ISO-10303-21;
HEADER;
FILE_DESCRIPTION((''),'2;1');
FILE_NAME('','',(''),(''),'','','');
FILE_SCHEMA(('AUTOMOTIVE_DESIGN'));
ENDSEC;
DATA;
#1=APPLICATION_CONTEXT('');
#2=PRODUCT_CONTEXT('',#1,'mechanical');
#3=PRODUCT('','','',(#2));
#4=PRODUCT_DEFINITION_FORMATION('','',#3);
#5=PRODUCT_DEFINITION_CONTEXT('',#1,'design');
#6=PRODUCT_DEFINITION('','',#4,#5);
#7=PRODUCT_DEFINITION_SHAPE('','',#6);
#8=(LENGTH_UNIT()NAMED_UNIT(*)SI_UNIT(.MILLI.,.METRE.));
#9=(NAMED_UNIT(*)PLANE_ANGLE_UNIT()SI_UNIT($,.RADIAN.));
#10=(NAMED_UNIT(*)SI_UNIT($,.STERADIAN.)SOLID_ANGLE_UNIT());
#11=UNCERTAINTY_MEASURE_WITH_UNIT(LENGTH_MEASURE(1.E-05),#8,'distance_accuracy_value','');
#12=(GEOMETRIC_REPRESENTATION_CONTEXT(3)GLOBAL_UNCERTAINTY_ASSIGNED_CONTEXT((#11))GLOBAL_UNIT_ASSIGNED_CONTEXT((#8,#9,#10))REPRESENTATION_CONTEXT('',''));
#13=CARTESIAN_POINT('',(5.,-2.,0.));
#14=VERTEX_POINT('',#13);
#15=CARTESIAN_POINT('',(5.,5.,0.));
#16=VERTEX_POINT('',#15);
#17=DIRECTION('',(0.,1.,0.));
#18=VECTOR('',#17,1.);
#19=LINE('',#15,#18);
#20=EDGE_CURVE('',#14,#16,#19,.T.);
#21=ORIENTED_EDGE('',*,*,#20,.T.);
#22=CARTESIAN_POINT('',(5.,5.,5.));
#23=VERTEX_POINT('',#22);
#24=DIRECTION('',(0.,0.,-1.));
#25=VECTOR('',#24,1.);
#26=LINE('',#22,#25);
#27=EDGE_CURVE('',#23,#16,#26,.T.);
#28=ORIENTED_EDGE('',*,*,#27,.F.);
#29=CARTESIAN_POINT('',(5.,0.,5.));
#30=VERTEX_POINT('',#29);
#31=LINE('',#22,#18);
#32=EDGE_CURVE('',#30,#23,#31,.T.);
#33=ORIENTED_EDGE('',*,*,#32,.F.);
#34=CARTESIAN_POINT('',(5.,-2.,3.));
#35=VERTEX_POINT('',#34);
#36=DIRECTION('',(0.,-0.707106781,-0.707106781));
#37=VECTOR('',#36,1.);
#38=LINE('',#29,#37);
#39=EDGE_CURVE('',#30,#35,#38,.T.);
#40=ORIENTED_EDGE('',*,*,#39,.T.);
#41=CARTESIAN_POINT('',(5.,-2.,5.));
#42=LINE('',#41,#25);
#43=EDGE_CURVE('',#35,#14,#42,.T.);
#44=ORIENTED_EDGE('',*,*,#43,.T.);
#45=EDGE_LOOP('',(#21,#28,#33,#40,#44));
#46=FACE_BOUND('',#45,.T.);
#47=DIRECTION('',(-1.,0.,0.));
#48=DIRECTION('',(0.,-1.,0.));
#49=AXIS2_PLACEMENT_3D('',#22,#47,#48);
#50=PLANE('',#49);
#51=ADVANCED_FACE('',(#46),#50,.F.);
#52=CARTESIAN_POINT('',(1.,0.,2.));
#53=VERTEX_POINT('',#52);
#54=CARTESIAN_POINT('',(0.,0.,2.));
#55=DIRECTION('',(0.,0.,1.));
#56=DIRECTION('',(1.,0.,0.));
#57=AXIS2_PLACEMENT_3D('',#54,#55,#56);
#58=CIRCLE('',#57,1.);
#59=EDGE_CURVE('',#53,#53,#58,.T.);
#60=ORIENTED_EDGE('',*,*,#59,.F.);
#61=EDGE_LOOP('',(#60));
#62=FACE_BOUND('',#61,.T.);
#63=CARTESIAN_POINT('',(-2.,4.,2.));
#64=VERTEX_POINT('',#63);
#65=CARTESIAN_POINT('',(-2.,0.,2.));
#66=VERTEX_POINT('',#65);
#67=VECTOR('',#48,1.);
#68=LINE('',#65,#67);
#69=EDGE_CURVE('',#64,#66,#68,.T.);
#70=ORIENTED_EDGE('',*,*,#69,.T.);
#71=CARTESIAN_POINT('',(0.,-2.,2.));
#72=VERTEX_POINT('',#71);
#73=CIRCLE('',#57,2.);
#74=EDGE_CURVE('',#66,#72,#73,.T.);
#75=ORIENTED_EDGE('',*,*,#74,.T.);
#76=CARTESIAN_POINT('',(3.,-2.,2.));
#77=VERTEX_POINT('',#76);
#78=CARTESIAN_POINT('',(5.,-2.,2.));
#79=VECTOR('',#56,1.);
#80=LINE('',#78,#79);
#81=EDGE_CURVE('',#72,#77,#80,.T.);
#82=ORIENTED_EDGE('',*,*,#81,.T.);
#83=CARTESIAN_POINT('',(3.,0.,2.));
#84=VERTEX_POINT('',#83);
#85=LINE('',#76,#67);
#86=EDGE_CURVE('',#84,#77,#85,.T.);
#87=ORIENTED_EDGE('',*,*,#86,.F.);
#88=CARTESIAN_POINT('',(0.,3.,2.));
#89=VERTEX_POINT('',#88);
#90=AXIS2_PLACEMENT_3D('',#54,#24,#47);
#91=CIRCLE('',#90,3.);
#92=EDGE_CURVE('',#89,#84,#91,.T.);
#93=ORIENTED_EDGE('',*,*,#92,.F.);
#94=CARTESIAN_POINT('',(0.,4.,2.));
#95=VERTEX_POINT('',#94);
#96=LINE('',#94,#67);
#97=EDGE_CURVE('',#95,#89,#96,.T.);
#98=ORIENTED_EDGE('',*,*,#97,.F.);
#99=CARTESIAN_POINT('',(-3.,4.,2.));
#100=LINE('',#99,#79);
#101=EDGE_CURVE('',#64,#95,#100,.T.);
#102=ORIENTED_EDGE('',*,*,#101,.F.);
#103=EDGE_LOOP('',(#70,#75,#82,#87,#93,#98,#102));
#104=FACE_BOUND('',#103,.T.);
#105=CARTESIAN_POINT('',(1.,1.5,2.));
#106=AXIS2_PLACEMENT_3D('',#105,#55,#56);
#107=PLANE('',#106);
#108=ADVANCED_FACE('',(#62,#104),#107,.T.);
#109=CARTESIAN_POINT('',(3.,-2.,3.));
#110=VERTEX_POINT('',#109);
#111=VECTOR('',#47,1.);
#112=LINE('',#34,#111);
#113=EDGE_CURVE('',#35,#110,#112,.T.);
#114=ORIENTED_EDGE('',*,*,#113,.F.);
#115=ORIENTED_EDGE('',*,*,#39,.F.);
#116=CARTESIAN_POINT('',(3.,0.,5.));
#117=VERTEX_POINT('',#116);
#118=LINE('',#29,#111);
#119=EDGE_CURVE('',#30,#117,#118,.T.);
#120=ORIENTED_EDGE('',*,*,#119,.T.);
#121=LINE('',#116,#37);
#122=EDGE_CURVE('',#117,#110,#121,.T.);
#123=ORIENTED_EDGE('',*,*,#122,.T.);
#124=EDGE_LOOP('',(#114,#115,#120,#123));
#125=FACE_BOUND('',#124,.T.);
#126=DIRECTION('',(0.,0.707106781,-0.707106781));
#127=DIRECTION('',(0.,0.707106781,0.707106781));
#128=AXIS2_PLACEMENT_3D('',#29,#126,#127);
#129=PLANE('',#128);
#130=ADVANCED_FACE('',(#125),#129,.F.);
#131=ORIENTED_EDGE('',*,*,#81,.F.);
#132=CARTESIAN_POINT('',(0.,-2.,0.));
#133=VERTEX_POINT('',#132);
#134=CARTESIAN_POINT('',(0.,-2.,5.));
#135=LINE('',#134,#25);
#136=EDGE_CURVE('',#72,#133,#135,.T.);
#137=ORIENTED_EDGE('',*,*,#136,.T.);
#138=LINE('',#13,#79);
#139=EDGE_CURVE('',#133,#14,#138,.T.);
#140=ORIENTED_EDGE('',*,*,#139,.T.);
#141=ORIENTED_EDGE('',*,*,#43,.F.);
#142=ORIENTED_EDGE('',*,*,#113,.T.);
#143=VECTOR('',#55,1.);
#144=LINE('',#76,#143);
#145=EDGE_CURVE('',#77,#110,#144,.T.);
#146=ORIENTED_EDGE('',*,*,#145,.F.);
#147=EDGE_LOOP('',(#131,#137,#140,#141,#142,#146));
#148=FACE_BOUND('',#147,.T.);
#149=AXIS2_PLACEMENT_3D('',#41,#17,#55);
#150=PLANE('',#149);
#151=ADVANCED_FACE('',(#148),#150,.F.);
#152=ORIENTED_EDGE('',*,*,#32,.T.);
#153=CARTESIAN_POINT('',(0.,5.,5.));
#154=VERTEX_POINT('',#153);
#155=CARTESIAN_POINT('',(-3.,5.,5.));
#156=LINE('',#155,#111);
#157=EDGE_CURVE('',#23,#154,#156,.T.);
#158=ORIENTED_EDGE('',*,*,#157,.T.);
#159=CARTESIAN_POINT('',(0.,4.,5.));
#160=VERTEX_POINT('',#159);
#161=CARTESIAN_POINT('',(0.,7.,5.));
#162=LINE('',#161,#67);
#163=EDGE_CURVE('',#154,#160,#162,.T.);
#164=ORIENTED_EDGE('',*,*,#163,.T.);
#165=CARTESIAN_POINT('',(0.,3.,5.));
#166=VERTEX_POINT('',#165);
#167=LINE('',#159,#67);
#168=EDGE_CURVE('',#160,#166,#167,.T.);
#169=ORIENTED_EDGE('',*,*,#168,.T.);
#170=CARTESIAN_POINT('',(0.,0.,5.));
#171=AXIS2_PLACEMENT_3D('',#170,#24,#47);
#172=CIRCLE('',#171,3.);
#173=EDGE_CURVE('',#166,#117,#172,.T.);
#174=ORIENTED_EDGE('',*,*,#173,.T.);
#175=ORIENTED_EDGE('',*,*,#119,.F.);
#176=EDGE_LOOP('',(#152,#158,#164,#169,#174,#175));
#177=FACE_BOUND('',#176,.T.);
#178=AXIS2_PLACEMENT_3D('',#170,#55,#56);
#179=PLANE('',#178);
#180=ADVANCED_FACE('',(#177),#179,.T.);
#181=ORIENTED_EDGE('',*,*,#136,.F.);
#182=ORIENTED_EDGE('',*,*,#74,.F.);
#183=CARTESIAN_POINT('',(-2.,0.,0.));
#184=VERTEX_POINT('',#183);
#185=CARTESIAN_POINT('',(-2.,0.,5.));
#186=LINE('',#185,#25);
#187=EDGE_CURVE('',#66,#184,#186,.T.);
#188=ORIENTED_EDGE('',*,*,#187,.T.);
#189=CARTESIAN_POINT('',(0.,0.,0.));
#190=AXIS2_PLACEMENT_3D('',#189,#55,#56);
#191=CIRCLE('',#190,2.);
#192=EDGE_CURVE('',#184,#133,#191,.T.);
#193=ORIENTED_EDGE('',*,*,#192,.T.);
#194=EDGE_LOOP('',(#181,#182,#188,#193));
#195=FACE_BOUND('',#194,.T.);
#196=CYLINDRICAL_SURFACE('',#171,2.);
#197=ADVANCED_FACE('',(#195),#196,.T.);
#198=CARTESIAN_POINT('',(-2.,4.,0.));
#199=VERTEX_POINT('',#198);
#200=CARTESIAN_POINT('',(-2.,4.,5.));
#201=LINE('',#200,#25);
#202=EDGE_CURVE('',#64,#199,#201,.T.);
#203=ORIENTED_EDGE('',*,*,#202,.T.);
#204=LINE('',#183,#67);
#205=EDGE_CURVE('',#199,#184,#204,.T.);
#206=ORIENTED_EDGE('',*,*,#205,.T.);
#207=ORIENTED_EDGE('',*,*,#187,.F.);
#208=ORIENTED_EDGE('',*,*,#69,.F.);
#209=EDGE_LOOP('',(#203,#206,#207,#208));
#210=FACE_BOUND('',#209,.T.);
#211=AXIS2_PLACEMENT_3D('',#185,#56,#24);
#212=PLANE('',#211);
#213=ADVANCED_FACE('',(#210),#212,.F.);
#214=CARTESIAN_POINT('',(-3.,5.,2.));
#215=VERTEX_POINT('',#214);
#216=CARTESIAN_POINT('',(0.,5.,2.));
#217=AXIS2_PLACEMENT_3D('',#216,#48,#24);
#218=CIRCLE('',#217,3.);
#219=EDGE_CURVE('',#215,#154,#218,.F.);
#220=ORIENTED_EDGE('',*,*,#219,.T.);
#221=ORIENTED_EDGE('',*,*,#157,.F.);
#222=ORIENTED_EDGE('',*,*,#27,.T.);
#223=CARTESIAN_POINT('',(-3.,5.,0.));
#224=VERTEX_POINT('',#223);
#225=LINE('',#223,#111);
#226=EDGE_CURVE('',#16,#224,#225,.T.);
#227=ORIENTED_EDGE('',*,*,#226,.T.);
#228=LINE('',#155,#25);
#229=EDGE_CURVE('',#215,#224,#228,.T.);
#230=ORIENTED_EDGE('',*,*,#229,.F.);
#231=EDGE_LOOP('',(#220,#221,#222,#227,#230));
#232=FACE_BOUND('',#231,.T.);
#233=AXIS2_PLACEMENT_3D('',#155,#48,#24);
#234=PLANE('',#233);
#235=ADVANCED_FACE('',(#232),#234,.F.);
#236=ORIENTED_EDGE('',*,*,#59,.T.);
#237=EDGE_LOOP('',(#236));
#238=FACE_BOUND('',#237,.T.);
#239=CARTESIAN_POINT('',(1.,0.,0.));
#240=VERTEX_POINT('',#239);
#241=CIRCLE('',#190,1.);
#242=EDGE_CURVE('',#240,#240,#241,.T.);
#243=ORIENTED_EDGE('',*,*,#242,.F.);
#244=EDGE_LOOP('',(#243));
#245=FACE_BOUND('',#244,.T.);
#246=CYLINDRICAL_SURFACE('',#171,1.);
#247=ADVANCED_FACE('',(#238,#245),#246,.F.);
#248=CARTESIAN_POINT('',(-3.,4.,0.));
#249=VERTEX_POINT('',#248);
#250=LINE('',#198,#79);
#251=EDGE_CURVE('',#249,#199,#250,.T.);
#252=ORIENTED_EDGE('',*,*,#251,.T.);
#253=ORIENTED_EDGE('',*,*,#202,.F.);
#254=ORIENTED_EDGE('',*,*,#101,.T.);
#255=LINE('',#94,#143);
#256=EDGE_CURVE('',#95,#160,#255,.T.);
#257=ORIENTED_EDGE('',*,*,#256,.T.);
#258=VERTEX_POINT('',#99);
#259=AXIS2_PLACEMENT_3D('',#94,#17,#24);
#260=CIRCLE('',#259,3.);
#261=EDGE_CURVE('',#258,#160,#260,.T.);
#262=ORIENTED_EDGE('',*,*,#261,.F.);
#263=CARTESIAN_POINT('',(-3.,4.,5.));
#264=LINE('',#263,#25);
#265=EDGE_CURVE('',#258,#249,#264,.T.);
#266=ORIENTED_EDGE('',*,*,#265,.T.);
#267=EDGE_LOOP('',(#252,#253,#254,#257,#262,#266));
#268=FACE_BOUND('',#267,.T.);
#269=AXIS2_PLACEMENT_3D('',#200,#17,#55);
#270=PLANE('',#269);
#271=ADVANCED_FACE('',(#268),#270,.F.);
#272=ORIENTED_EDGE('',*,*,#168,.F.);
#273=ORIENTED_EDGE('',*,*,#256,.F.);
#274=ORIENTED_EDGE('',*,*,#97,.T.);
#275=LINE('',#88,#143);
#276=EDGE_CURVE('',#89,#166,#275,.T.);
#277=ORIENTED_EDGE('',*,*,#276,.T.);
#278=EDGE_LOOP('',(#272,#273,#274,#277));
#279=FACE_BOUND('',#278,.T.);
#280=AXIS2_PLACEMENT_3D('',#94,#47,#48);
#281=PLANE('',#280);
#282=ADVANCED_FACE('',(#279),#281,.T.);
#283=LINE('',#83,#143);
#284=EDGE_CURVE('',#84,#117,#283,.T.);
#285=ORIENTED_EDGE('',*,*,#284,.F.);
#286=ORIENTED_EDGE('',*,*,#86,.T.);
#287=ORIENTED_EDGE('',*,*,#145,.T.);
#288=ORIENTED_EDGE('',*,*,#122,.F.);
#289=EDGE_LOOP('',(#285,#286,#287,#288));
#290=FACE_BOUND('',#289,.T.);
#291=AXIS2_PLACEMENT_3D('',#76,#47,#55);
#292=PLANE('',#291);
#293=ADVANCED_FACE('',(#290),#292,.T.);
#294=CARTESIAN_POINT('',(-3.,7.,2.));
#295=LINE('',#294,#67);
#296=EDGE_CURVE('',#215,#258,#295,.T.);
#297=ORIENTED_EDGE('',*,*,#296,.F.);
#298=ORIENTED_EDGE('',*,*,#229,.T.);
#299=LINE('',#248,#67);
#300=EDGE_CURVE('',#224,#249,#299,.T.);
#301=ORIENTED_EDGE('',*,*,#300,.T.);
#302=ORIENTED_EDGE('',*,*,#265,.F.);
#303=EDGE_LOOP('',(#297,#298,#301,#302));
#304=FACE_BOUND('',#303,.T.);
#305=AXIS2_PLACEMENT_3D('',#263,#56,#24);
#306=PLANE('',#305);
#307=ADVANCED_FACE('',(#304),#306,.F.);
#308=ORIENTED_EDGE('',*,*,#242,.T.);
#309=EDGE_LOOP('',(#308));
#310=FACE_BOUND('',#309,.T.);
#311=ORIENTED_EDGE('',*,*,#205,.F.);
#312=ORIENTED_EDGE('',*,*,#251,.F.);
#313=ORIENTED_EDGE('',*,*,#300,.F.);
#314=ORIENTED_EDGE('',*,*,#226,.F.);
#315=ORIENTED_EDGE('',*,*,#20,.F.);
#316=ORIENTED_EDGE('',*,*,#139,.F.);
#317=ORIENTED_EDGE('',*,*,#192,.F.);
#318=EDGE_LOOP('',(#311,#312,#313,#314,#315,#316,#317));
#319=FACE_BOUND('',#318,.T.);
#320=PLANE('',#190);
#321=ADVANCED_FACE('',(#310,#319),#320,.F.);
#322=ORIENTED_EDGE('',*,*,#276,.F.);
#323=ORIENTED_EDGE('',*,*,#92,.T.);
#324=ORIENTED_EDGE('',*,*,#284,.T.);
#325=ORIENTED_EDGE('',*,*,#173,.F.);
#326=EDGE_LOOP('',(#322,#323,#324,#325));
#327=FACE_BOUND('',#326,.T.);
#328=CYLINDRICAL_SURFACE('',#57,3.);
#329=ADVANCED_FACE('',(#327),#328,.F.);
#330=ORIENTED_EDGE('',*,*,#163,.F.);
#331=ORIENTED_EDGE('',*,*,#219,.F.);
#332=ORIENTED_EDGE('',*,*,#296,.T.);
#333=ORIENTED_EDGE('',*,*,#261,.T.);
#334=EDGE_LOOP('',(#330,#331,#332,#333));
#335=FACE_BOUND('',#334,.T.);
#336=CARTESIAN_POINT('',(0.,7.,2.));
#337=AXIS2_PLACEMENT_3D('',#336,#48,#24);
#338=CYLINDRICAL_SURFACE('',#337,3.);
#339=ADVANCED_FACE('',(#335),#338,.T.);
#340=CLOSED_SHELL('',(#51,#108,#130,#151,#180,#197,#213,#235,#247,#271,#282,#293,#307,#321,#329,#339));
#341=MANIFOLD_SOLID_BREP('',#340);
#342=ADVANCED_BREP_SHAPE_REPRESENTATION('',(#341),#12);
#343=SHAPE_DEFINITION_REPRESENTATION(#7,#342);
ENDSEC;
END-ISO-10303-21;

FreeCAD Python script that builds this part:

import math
import FreeCAD as App
import Part
import Sketcher
from FreeCAD import Vector
Q = App.Units.Quantity


def add_polygon(sketch, points):
    """Adds a closed chain of lines whose ends are joined by coincident constraints."""
    first, n = sketch.GeometryCount, len(points)
    for a, b in zip(points, points[1:] + points[:1]):
        sketch.addGeometry(Part.LineSegment(App.Vector(*a, 0), App.Vector(*b, 0)), False)
    for i in range(n):
        sketch.addConstraint(Sketcher.Constraint("Coincident", first + i, 2, first + (i + 1) % n, 1))

doc = App.newDocument("Part")
params = doc.addObject("Spreadsheet::Sheet", "Params")
for row, (alias, value) in enumerate([
    ("sketch1_diameter", "2 mm"),
    ("sketch1_radius", "2 mm"),
    ("sketch1_width", "5 mm"),
    ("sketch1_width2", "8 mm"),
    ("sketch1_height", "4 mm"),
    ("pad1_length", "5 mm"),
    ("sketch2_radius", "3 mm"),
    ("sketch2_width", "2 mm"),
    ("sketch2_width2", "3 mm"),
    ("sketch2_height", "7 mm"),
    ("sketch2_width3", "12.35 mm"),
    ("pocket1_length", "3 mm"),
    ("sketch3_radius", "3 mm"),
    ("pocket2_length", "3 mm"),
    ("sketch4_width", "2 mm"),
], start=1):
    params.set(f"A{row}", alias)
    params.set(f"B{row}", "=" + value)
    params.setAlias(f"B{row}", alias)

body = doc.addObject("PartDesign::Body", "Body")

# Sketch on XY plane
sketch1 = body.newObject("Sketcher::SketchObject", "Sketch")
sketch1.AttachmentSupport = (doc.getObject("XY_Plane"), [""])
sketch1.MapMode = "FlatFace"
sketch1.addGeometry([
    Part.LineSegment(Vector(-2, 4, 0), Vector(-2, 0, 0)),  # 0
    Part.ArcOfCircle(Part.Circle(Vector(0, 0, 0), Vector(0, 0, 1), 2), math.radians(-180), math.radians(-90)),  # 1
    Part.LineSegment(Vector(0, -2, 0), Vector(5, -2, 0)),  # 2
    Part.LineSegment(Vector(5, -2, 0), Vector(5, 5, 0)),  # 3
    Part.LineSegment(Vector(5, 5, 0), Vector(-3, 5, 0)),  # 4
    Part.LineSegment(Vector(-3, 5, 0), Vector(-3, 4, 0)),  # 5
    Part.LineSegment(Vector(-3, 4, 0), Vector(-2, 4, 0)),  # 6
    Part.Circle(Vector(0, 0, 0), Vector(0, 0, 1), 1),  # 7
], False)
sketch1.addConstraint([
    Sketcher.Constraint("Tangent", 0, 2, 1, 1),
    Sketcher.Constraint("Tangent", 1, 2, 2, 1),
    Sketcher.Constraint("Coincident", 2, 2, 3, 1),
    Sketcher.Constraint("Coincident", 3, 2, 4, 1),
    Sketcher.Constraint("Coincident", 4, 2, 5, 1),
    Sketcher.Constraint("Coincident", 5, 2, 6, 1),
    Sketcher.Constraint("Coincident", 6, 2, 0, 1),
    Sketcher.Constraint("Vertical", 0),
    Sketcher.Constraint("Horizontal", 2),
    Sketcher.Constraint("Vertical", 3),
    Sketcher.Constraint("Horizontal", 4),
    Sketcher.Constraint("Vertical", 5),
    Sketcher.Constraint("Horizontal", 6),
    Sketcher.Constraint("Coincident", 1, 3, -1, 1),
    Sketcher.Constraint("Coincident", 7, 3, -1, 1),
    Sketcher.Constraint("Equal", 6, 5),
    Sketcher.Constraint("Diameter", 7, Q("2 mm")),
    Sketcher.Constraint("Radius", 1, Q("2 mm")),
    Sketcher.Constraint("DistanceX", 2, 1, 2, 2, Q("5 mm")),
    Sketcher.Constraint("DistanceX", 4, 2, 4, 1, Q("8 mm")),
    Sketcher.Constraint("DistanceY", 0, 2, 0, 1, Q("4 mm")),
])
sketch1.setExpression("Constraints[16]", "Params.sketch1_diameter")
sketch1.setExpression("Constraints[17]", "Params.sketch1_radius")
sketch1.setExpression("Constraints[18]", "Params.sketch1_width")
sketch1.setExpression("Constraints[19]", "Params.sketch1_width2")
sketch1.setExpression("Constraints[20]", "Params.sketch1_height")
pad1 = body.newObject("PartDesign::Pad", "Pad")
pad1.Profile = sketch1
pad1.setExpression("Length", "Params.pad1_length")

# Sketch on XY plane
sketch2 = body.newObject("Sketcher::SketchObject", "Sketch001")
sketch2.AttachmentSupport = (doc.getObject("XY_Plane"), [""])
sketch2.MapMode = "FlatFace"
sketch2.AttachmentOffset = App.Placement(Vector(0, 0, 5), App.Rotation())
add_polygon(sketch2, [(-5.2, 7.2), (-5.2, -4.2), (7.2, -4.2), (7.2, 7.2)])  # lines 0-3
sketch2.addGeometry(Part.LineSegment(Vector(5, 5, 0), Vector(5, -2, 0)), False)  # 4
sketch2.addGeometry(Part.LineSegment(Vector(5, -2, 0), Vector(3, -2, 0)), False)  # 5
sketch2.addGeometry(Part.LineSegment(Vector(3, -2, 0), Vector(3, 0, 0)), False)  # 6
sketch2.addGeometry(Part.ArcOfCircle(Part.Circle(Vector(0, 0, 0), Vector(0, 0, 1), 3), math.radians(0), math.radians(90)), False)  # 7
sketch2.addGeometry(Part.LineSegment(Vector(0, 3, 0), Vector(0, 4, 0)), False)  # 8
sketch2.addGeometry(Part.LineSegment(Vector(0, 4, 0), Vector(-3, 4, 0)), False)  # 9
sketch2.addGeometry(Part.LineSegment(Vector(-3, 4, 0), Vector(-3, 5, 0)), False)  # 10
sketch2.addGeometry(Part.LineSegment(Vector(-3, 5, 0), Vector(5, 5, 0)), False)  # 11
sketch2.addConstraint([
    Sketcher.Constraint("Coincident", 4, 2, 5, 1),
    Sketcher.Constraint("Coincident", 5, 2, 6, 1),
    Sketcher.Constraint("Tangent", 6, 2, 7, 1),
    Sketcher.Constraint("Coincident", 7, 2, 8, 1),
    Sketcher.Constraint("Coincident", 8, 2, 9, 1),
    Sketcher.Constraint("Coincident", 9, 2, 10, 1),
    Sketcher.Constraint("Coincident", 10, 2, 11, 1),
    Sketcher.Constraint("Coincident", 11, 2, 4, 1),
    Sketcher.Constraint("Vertical", 0),
    Sketcher.Constraint("Horizontal", 1),
    Sketcher.Constraint("Vertical", 2),
    Sketcher.Constraint("Horizontal", 3),
    Sketcher.Constraint("Vertical", 4),
    Sketcher.Constraint("Horizontal", 5),
    Sketcher.Constraint("Vertical", 6),
    Sketcher.Constraint("Vertical", 8),
    Sketcher.Constraint("Horizontal", 9),
    Sketcher.Constraint("Vertical", 10),
    Sketcher.Constraint("Horizontal", 11),
    Sketcher.Constraint("Coincident", 7, 3, -1, 1),
    Sketcher.Constraint("PointOnObject", 7, 2, -2),
    Sketcher.Constraint("Equal", 5, 6),
    Sketcher.Constraint("Equal", 8, 10),
    Sketcher.Constraint("Radius", 7, Q("3 mm")),
    Sketcher.Constraint("DistanceX", 5, 2, 5, 1, Q("2 mm")),
    Sketcher.Constraint("DistanceX", 9, 2, 9, 1, Q("3 mm")),
    Sketcher.Constraint("DistanceY", 4, 2, 4, 1, Q("7 mm")),
    Sketcher.Constraint("DistanceX", 1, 1, 1, 2, Q("12.35 mm")),
    Sketcher.Constraint("DistanceY", 0, 2, 0, 1, Q("11.35 mm")),
    Sketcher.Constraint("DistanceX", 0, 2, -1, 1, Q("5.175 mm")),
    Sketcher.Constraint("DistanceY", 0, 2, -1, 1, Q("4.175 mm")),
])
sketch2.setExpression("Constraints[27]", "Params.sketch2_radius")
sketch2.setExpression("Constraints[28]", "Params.sketch2_width")
sketch2.setExpression("Constraints[29]", "Params.sketch2_width2")
sketch2.setExpression("Constraints[30]", "Params.sketch2_height")
sketch2.setExpression("Constraints[31]", "Params.sketch2_width3")
pocket1 = body.newObject("PartDesign::Pocket", "Pocket")
pocket1.Profile = sketch2
pocket1.setExpression("Length", "Params.pocket1_length")

# Sketch on XZ plane
sketch3 = body.newObject("Sketcher::SketchObject", "Sketch002")
sketch3.AttachmentSupport = (doc.getObject("XZ_Plane"), [""])
sketch3.MapMode = "FlatFace"
sketch3.AttachmentOffset = App.Placement(Vector(0, 0, -4), App.Rotation())
sketch3.addGeometry([
    Part.LineSegment(Vector(-3, 5, 0), Vector(-3, 2, 0)),
    Part.ArcOfCircle(Part.Circle(Vector(0, 2, 0), Vector(0, 0, 1), 3), math.radians(90), math.radians(180)),
    Part.LineSegment(Vector(0, 5, 0), Vector(-3, 5, 0)),
], False)
sketch3.addConstraint([
    Sketcher.Constraint("Tangent", 0, 2, 1, 2),
    Sketcher.Constraint("Tangent", 1, 1, 2, 1),
    Sketcher.Constraint("Coincident", 2, 2, 0, 1),
    Sketcher.Constraint("Vertical", 0),
    Sketcher.Constraint("Horizontal", 2),
    Sketcher.Constraint("PointOnObject", 1, 3, -2),
    Sketcher.Constraint("Radius", 1, Q("3 mm")),
    Sketcher.Constraint("DistanceY", -1, 1, 1, 3, Q("2 mm")),
])
sketch3.setExpression("Constraints[6]", "Params.sketch3_radius")
pocket2 = body.newObject("PartDesign::Pocket", "Pocket001")
pocket2.Profile = sketch3
pocket2.setExpression("Length", "Params.pocket2_length")

# Sketch on YZ plane
sketch4 = body.newObject("Sketcher::SketchObject", "Sketch003")
sketch4.AttachmentSupport = (doc.getObject("YZ_Plane"), [""])
sketch4.MapMode = "FlatFace"
sketch4.AttachmentOffset = App.Placement(Vector(0, 0, 3), App.Rotation())
add_polygon(sketch4, [(0, 5), (-2, 3), (-2, 5)])  # lines 0-2
sketch4.addConstraint([
    Sketcher.Constraint("Vertical", 1),
    Sketcher.Constraint("Horizontal", 2),
    Sketcher.Constraint("PointOnObject", 2, 2, -2),
    Sketcher.Constraint("Equal", 2, 1),
    Sketcher.Constraint("DistanceX", 2, 1, 2, 2, Q("2 mm")),
    Sketcher.Constraint("DistanceY", -1, 1, 0, 2, Q("3 mm")),
])
sketch4.setExpression("Constraints[7]", "Params.sketch4_width")
pocket3 = body.newObject("PartDesign::Pocket", "Pocket002")
pocket3.Profile = sketch4
pocket3.Type = "ThroughAll"
pocket3.Reversed = True

doc.recompute()
